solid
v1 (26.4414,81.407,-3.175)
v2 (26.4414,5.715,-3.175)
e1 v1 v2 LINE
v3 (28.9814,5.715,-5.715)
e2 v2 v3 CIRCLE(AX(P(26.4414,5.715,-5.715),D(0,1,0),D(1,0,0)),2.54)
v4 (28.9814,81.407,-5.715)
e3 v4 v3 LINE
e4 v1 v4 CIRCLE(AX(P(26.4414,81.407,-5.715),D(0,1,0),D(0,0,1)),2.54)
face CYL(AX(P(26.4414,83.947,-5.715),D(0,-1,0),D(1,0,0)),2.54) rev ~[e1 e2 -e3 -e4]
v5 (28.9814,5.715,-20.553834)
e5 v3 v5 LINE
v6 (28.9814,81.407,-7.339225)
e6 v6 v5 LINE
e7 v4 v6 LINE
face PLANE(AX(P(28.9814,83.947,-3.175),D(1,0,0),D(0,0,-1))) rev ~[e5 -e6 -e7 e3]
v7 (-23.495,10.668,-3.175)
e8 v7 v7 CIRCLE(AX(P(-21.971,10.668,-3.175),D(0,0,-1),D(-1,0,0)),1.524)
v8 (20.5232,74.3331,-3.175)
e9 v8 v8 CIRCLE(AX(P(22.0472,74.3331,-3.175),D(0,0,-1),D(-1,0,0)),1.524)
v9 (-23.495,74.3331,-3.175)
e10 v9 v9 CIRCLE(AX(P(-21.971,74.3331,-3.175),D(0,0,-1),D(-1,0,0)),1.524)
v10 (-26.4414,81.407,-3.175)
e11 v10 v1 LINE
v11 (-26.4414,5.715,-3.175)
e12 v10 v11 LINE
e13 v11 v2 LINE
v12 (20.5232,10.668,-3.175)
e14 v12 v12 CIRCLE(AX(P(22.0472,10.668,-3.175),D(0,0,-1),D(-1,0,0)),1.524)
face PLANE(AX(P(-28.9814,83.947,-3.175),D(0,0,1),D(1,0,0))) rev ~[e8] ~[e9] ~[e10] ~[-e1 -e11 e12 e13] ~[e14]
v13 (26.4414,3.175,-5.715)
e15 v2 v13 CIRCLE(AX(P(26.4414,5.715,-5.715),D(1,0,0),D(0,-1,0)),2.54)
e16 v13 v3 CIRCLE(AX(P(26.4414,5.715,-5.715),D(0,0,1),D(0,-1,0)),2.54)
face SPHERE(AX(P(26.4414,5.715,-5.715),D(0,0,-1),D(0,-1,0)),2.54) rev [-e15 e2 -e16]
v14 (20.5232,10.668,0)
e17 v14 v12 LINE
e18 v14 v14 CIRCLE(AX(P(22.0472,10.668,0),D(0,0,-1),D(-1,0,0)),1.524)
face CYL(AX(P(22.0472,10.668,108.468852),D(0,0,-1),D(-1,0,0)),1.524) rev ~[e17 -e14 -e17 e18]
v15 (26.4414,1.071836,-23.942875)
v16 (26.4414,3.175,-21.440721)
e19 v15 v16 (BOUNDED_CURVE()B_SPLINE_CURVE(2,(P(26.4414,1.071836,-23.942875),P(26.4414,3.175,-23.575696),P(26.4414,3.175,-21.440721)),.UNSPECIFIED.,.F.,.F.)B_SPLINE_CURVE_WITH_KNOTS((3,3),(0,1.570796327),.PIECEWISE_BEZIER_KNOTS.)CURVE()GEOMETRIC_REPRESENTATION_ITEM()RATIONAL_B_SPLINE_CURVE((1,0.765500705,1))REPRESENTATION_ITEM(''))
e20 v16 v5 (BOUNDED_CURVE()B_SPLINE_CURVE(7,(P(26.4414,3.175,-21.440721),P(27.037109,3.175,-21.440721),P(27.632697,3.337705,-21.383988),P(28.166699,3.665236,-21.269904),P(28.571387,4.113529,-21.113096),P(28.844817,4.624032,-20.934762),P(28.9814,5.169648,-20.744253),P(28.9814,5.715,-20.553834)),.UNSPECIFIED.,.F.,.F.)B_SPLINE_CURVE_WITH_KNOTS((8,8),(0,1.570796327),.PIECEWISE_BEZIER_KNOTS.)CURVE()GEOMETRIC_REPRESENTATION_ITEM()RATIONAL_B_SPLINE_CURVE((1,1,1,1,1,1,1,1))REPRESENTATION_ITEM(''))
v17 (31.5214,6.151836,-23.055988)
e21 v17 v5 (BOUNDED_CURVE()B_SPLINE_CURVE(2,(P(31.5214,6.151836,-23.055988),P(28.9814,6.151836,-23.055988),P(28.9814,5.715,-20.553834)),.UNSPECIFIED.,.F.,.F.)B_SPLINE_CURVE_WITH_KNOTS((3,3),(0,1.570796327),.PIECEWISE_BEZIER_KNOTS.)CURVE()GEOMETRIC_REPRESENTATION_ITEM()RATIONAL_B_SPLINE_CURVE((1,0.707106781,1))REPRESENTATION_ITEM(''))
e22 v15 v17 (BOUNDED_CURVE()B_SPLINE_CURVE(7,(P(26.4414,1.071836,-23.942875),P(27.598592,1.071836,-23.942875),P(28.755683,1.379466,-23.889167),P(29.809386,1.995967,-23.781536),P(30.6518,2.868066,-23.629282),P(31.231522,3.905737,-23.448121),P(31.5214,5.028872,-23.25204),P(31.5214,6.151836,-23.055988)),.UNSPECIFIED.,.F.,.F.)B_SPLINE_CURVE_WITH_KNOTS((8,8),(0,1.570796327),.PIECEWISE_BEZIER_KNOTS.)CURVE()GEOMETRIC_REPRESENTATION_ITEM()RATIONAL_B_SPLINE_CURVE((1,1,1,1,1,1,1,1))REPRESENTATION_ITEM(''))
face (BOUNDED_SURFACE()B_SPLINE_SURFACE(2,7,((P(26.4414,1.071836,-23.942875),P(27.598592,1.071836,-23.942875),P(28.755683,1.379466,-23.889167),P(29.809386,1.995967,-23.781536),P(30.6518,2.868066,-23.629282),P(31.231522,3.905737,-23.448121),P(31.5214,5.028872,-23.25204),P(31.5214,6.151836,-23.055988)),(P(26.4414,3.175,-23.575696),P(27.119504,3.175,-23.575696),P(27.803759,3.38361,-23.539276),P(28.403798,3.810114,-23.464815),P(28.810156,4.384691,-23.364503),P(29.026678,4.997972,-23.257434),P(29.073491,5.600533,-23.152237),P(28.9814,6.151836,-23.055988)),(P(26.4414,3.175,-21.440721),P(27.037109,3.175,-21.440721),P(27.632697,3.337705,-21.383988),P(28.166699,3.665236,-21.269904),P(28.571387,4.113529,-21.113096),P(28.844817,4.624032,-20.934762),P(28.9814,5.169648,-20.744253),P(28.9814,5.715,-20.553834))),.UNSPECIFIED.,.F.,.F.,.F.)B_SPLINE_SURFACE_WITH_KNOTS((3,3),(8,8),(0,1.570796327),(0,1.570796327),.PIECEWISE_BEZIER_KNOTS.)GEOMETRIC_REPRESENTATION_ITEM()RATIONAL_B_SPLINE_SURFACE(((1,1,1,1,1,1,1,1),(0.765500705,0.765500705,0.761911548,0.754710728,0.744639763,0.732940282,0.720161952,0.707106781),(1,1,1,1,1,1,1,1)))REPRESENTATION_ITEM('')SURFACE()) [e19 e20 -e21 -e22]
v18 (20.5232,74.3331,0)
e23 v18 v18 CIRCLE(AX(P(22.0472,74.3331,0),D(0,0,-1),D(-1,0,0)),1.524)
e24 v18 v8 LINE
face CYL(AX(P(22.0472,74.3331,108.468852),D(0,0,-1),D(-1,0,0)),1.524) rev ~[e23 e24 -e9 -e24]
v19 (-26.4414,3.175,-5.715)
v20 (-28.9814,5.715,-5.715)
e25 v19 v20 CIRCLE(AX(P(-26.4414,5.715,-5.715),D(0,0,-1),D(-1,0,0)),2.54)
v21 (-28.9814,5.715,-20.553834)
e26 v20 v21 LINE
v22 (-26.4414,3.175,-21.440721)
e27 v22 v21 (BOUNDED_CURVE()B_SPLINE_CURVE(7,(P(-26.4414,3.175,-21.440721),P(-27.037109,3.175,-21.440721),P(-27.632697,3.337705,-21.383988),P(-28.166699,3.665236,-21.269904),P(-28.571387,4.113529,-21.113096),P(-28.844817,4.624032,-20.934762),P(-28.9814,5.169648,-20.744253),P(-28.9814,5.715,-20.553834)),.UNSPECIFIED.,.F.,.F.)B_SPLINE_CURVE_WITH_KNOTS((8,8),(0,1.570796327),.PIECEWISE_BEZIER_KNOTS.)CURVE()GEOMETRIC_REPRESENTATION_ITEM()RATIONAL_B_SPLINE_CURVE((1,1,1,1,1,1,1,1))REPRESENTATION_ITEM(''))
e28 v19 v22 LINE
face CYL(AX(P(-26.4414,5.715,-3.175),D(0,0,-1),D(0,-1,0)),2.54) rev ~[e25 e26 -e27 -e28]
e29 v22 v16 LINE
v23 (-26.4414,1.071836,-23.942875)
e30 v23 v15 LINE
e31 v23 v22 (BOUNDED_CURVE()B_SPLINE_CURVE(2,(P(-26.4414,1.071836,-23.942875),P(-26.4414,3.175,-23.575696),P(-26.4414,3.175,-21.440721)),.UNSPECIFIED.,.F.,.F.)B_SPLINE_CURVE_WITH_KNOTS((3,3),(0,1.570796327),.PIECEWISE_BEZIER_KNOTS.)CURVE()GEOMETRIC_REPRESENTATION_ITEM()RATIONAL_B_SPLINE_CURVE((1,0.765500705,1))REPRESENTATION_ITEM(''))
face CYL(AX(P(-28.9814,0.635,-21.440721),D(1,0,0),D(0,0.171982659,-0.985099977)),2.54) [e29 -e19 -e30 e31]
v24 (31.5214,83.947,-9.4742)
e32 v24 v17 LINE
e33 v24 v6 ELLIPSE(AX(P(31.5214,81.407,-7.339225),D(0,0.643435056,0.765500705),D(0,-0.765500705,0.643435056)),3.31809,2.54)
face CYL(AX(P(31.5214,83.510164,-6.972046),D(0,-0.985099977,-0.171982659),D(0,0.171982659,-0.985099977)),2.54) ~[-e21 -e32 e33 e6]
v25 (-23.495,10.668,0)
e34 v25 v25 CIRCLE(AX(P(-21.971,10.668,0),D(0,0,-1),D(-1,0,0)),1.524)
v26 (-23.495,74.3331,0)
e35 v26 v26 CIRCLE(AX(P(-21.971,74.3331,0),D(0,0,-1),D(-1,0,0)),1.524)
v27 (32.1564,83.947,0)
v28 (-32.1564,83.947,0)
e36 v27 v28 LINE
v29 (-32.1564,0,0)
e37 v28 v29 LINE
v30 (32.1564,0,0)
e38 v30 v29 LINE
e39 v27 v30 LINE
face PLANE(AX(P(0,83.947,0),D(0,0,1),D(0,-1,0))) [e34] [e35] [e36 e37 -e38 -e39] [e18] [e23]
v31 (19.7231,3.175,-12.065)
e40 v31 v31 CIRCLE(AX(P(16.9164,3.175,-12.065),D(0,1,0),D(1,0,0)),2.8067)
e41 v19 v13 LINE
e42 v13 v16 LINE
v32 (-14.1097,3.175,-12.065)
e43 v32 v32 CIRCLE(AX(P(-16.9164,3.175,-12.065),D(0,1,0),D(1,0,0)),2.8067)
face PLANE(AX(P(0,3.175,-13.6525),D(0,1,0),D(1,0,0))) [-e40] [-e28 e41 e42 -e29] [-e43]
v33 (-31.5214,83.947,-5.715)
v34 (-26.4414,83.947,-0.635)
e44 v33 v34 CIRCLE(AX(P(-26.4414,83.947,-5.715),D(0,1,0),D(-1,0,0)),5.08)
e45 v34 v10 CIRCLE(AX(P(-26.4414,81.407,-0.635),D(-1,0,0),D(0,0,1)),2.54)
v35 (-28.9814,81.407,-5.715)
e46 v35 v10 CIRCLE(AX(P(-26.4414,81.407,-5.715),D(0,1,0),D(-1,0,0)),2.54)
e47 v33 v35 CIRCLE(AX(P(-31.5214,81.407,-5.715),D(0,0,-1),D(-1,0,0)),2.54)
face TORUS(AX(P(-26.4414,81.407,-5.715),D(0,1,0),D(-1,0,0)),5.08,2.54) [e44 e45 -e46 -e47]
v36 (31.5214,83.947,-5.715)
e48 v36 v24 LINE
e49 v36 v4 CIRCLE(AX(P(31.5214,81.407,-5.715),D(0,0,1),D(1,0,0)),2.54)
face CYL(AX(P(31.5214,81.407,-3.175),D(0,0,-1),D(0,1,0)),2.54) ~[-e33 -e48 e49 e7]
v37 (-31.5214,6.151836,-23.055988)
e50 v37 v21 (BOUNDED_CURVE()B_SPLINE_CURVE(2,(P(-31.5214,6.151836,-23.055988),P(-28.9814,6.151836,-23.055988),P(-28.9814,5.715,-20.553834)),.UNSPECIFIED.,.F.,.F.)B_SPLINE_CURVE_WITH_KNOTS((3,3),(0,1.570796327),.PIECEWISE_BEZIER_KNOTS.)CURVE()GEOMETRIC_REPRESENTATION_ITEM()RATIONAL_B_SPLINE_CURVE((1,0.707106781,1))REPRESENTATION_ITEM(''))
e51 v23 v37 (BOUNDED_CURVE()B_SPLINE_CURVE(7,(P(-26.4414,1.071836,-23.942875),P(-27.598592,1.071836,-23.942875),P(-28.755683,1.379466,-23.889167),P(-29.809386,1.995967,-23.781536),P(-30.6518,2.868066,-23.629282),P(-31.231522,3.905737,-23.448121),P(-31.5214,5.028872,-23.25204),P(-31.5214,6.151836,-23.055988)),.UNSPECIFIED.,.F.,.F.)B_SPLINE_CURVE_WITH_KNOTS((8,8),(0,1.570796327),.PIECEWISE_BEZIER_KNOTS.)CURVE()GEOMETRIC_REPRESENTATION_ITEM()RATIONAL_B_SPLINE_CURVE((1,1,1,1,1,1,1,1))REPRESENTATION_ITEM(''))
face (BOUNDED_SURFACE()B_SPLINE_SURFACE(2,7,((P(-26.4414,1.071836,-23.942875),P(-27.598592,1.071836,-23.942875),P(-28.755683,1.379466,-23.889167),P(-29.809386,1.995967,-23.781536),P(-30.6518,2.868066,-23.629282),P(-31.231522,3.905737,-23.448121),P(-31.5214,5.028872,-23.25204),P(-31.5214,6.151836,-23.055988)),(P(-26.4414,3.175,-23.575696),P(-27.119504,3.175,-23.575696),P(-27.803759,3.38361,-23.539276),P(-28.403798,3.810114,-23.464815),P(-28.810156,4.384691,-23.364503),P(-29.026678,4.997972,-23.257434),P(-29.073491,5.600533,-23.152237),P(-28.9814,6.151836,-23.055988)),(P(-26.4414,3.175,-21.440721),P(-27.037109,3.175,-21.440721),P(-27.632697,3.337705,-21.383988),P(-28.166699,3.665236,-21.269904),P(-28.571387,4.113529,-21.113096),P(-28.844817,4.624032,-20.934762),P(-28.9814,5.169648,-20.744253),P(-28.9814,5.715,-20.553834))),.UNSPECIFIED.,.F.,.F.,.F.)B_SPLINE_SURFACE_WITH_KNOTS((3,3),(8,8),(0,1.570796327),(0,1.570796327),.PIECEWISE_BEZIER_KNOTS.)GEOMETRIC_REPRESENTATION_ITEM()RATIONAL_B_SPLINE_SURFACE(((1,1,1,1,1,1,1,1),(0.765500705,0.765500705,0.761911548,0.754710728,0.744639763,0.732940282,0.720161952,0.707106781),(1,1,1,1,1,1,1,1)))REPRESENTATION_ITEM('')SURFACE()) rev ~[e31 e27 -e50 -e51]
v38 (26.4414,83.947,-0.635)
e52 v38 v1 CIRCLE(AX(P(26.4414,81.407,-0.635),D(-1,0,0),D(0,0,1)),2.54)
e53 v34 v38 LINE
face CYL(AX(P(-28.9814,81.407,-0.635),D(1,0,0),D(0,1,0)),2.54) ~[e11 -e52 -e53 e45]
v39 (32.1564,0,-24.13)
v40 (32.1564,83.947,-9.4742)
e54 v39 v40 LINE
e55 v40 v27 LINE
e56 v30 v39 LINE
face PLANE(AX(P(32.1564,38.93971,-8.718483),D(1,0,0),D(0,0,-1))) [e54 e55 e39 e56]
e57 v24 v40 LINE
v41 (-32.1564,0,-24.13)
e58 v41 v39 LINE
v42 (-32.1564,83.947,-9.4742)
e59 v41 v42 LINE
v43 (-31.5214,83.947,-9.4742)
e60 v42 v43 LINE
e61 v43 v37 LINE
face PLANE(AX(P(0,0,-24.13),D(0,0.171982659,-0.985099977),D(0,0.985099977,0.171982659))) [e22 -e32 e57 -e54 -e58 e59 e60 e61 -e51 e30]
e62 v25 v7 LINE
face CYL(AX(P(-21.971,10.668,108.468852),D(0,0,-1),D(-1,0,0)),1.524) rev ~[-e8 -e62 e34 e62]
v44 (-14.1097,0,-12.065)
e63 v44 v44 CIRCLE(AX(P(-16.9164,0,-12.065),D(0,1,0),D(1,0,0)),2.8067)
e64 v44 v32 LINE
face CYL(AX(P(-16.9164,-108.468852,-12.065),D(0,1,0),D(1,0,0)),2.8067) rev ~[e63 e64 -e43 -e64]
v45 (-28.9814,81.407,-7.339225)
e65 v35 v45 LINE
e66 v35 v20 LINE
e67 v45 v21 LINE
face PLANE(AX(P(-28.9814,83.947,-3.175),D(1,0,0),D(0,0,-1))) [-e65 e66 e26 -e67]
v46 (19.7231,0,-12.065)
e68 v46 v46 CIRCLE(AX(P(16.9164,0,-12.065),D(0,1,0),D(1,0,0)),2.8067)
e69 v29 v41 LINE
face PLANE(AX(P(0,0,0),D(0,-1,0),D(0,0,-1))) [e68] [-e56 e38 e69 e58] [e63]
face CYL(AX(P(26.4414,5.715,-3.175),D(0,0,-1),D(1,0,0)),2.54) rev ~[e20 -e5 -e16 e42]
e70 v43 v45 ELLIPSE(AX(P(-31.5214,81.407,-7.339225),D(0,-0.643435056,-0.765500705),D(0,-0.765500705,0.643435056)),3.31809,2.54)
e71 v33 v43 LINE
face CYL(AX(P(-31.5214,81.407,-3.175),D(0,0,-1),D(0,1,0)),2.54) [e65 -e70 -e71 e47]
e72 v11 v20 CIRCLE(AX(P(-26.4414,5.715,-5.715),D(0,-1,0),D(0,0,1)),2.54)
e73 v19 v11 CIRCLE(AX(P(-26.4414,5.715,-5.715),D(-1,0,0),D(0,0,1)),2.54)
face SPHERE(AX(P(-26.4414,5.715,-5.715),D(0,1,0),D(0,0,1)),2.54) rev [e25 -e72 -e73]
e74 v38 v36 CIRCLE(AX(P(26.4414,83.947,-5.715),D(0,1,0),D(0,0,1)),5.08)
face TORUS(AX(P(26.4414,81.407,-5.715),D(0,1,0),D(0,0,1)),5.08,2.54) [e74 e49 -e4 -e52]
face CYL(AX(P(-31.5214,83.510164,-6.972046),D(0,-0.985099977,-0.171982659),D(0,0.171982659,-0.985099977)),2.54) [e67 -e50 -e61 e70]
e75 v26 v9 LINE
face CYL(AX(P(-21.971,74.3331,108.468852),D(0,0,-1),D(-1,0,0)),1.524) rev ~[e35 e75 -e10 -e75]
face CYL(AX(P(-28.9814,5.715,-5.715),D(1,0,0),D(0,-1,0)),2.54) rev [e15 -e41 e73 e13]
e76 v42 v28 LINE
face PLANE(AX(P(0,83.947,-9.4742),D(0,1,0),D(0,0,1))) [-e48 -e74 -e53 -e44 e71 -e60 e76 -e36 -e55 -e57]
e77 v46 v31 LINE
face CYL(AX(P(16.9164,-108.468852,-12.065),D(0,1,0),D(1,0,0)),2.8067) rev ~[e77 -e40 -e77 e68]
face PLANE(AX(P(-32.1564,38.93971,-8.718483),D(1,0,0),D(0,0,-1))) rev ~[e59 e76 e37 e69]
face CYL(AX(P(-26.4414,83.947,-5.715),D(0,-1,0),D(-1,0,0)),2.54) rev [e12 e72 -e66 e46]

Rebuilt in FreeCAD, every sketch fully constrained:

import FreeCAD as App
import Part
import Sketcher

V = App.Vector
Q = App.Units.Quantity


def edges_at(feature, points):
    """Names of the edges that pass closest to the given points."""
    edges = feature.Shape.Edges
    near = lambda p: min(range(len(edges)), key=lambda i: edges[i].distToShape(Part.Vertex(*p))[0])
    return sorted({f"Edge{near(p) + 1}" for p in points})

doc = App.newDocument("Part")
body = doc.addObject("PartDesign::Body", "Body")

sketch1 = body.newObject("Sketcher::SketchObject", "Sketch")
sketch1.AttachmentSupport = (doc.getObject("YZ_Plane"), [""])
sketch1.MapMode = "FlatFace"
sketch1.addGeometry(Part.LineSegment(V(0, 0, 0), V(0, -24, 0)), False)
sketch1.addGeometry(Part.LineSegment(V(0, -24, 0), V(84, -9, 0)), False)
sketch1.addGeometry(Part.LineSegment(V(84, -9, 0), V(84, 0, 0)), False)
sketch1.addGeometry(Part.LineSegment(V(84, 0, 0), V(0, 0, 0)), False)
sketch1.addConstraint(Sketcher.Constraint("Coincident", 0, 2, 1, 1))
sketch1.addConstraint(Sketcher.Constraint("Coincident", 1, 2, 2, 1))
sketch1.addConstraint(Sketcher.Constraint("Coincident", 2, 2, 3, 1))
sketch1.addConstraint(Sketcher.Constraint("Coincident", 3, 2, 0, 1))
sketch1.addConstraint(Sketcher.Constraint("Vertical", 0))
sketch1.addConstraint(Sketcher.Constraint("Vertical", 2))
sketch1.addConstraint(Sketcher.Constraint("Horizontal", 3))
sketch1.addConstraint(Sketcher.Constraint("Coincident", 3, 2, -1, 1))
sketch1.addConstraint(Sketcher.Constraint("DistanceY", 0, 2, 0, 1, Q("0.95 in")))
sketch1.addConstraint(Sketcher.Constraint("DistanceX", 3, 2, 3, 1, Q("3.305 in")))
sketch1.addConstraint(Sketcher.Constraint("DistanceY", 2, 1, 2, 2, Q("0.373 in")))
pad1 = body.newObject("PartDesign::Pad", "Pad")
pad1.Profile = sketch1
pad1.Length = Q("2.532 in")
pad1.Midplane = True

sketch2 = body.newObject("Sketcher::SketchObject", "Sketch001")
sketch2.AttachmentSupport = (doc.getObject("XZ_Plane"), [""])
sketch2.MapMode = "FlatFace"
sketch2.AttachmentOffset = App.Placement(V(0, 0, -3.305 * 25.4), App.Rotation())
sketch2.addGeometry(Part.LineSegment(V(-29, -24, 0), V(-29, -3, 0)), False)
sketch2.addGeometry(Part.LineSegment(V(-29, -3, 0), V(29, -3, 0)), False)
sketch2.addGeometry(Part.LineSegment(V(29, -3, 0), V(29, -24, 0)), False)
sketch2.addGeometry(Part.LineSegment(V(29, -24, 0), V(-29, -24, 0)), False)
sketch2.addConstraint(Sketcher.Constraint("Coincident", 0, 2, 1, 1))
sketch2.addConstraint(Sketcher.Constraint("Coincident", 1, 2, 2, 1))
sketch2.addConstraint(Sketcher.Constraint("Coincident", 2, 2, 3, 1))
sketch2.addConstraint(Sketcher.Constraint("Coincident", 3, 2, 0, 1))
sketch2.addConstraint(Sketcher.Constraint("Vertical", 0))
sketch2.addConstraint(Sketcher.Constraint("Horizontal", 1))
sketch2.addConstraint(Sketcher.Constraint("Vertical", 2))
sketch2.addConstraint(Sketcher.Constraint("Horizontal", 3))
sketch2.addConstraint(Sketcher.Constraint("DistanceX", 1, 1, 1, 2, Q("2.282 in")))
sketch2.addConstraint(Sketcher.Constraint("DistanceY", 0, 1, 0, 2, Q("0.825 in")))
sketch2.addConstraint(Sketcher.Constraint("DistanceY", 2, 2, -1, 1, Q("0.95 in")))
sketch2.addConstraint(Sketcher.Constraint("DistanceX", 0, 2, -1, 1, Q("1.141 in")))
pocket1 = body.newObject("PartDesign::Pocket", "Pocket")
pocket1.Profile = sketch2
pocket1.Length = Q("3.18 in")
pocket1.Reversed = True

sketch3 = body.newObject("Sketcher::SketchObject", "Sketch002")
sketch3.AttachmentSupport = (doc.getObject("XY_Plane"), [""])
sketch3.MapMode = "FlatFace"
sketch3.addGeometry(Part.Circle(V(-22, 74.3, 0), V(0, 0, 1), 1.5), False)
sketch3.addGeometry(Part.Circle(V(22, 74.3, 0), V(0, 0, 1), 1.5), False)
sketch3.addGeometry(Part.Circle(V(22, 10.7, 0), V(0, 0, 1), 1.5), False)
sketch3.addGeometry(Part.Circle(V(-22, 10.7, 0), V(0, 0, 1), 1.5), False)
sketch3.addConstraint(Sketcher.Constraint("Equal", 0, 1))
sketch3.addConstraint(Sketcher.Constraint("Equal", 1, 2))
sketch3.addConstraint(Sketcher.Constraint("Equal", 2, 3))
sketch3.addConstraint(Sketcher.Constraint("Horizontal", 0, 3, 1, 3))
sketch3.addConstraint(Sketcher.Constraint("Horizontal", 2, 3, 3, 3))
sketch3.addConstraint(Sketcher.Constraint("Vertical", 1, 3, 2, 3))
sketch3.addConstraint(Sketcher.Constraint("Vertical", 0, 3, 3, 3))
sketch3.addConstraint(Sketcher.Constraint("Diameter", 0, Q("0.12 in")))
sketch3.addConstraint(Sketcher.Constraint("DistanceY", -1, 1, 2, 3, Q("0.42 in")))
sketch3.addConstraint(Sketcher.Constraint("DistanceX", 0, 3, -1, 1, Q("0.865 in")))
sketch3.addConstraint(Sketcher.Constraint("DistanceX", -1, 1, 1, 3, Q("0.868 in")))
sketch3.addConstraint(Sketcher.Constraint("DistanceY", -1, 1, 0, 3, Q("2.9265 in")))
doc.recompute()
hole = body.newObject("PartDesign::Hole", "Hole")
hole.Profile = sketch3
hole.ThreadType = "None"
hole.Diameter = Q("0.12 in")
hole.DepthType = "ThroughAll"

sketch4 = body.newObject("Sketcher::SketchObject", "Sketch003")
sketch4.AttachmentSupport = (doc.getObject("XZ_Plane"), [""])
sketch4.MapMode = "FlatFace"
sketch4.addGeometry(Part.Circle(V(16.9, -12.1, 0), V(0, 0, 1), 2.8), False)
sketch4.addGeometry(Part.Circle(V(-16.9, -12.1, 0), V(0, 0, 1), 2.8), False)
sketch4.addConstraint(Sketcher.Constraint("Equal", 0, 1))
sketch4.addConstraint(Sketcher.Constraint("Symmetric", 0, 3, 1, 3, -2))
sketch4.addConstraint(Sketcher.Constraint("Diameter", 0, Q("0.221 in")))
sketch4.addConstraint(Sketcher.Constraint("DistanceX", -1, 1, 0, 3, Q("0.666 in")))
sketch4.addConstraint(Sketcher.Constraint("DistanceY", 0, 3, -1, 1, Q("0.475 in")))
doc.recompute()
hole2 = body.newObject("PartDesign::Hole", "Hole001")
hole2.Profile = sketch4
hole2.ThreadType = "None"
hole2.Diameter = Q("0.221 in")
hole2.DepthType = "ThroughAll"
doc.recompute()

fillet = body.newObject("PartDesign::Fillet", "Fillet")
fillet.Base = (hole2, edges_at(hole2, [
    (0, 3.175, -23.576),
    (28.981, 43.561, -16.525),
    (-28.981, 43.561, -16.525),
    (-28.981, 43.561, -3.175),
    (-28.981, 83.947, -6.325),
    (0, 83.947, -3.175),
    (28.981, 83.947, -6.325),
    (28.981, 3.175, -13.375),
    (0, 3.175, -3.175),
    (-28.981, 3.175, -13.375),
    (28.981, 43.561, -3.175),
]))
fillet.Radius = Q("0.1 in")

doc.recompute()
